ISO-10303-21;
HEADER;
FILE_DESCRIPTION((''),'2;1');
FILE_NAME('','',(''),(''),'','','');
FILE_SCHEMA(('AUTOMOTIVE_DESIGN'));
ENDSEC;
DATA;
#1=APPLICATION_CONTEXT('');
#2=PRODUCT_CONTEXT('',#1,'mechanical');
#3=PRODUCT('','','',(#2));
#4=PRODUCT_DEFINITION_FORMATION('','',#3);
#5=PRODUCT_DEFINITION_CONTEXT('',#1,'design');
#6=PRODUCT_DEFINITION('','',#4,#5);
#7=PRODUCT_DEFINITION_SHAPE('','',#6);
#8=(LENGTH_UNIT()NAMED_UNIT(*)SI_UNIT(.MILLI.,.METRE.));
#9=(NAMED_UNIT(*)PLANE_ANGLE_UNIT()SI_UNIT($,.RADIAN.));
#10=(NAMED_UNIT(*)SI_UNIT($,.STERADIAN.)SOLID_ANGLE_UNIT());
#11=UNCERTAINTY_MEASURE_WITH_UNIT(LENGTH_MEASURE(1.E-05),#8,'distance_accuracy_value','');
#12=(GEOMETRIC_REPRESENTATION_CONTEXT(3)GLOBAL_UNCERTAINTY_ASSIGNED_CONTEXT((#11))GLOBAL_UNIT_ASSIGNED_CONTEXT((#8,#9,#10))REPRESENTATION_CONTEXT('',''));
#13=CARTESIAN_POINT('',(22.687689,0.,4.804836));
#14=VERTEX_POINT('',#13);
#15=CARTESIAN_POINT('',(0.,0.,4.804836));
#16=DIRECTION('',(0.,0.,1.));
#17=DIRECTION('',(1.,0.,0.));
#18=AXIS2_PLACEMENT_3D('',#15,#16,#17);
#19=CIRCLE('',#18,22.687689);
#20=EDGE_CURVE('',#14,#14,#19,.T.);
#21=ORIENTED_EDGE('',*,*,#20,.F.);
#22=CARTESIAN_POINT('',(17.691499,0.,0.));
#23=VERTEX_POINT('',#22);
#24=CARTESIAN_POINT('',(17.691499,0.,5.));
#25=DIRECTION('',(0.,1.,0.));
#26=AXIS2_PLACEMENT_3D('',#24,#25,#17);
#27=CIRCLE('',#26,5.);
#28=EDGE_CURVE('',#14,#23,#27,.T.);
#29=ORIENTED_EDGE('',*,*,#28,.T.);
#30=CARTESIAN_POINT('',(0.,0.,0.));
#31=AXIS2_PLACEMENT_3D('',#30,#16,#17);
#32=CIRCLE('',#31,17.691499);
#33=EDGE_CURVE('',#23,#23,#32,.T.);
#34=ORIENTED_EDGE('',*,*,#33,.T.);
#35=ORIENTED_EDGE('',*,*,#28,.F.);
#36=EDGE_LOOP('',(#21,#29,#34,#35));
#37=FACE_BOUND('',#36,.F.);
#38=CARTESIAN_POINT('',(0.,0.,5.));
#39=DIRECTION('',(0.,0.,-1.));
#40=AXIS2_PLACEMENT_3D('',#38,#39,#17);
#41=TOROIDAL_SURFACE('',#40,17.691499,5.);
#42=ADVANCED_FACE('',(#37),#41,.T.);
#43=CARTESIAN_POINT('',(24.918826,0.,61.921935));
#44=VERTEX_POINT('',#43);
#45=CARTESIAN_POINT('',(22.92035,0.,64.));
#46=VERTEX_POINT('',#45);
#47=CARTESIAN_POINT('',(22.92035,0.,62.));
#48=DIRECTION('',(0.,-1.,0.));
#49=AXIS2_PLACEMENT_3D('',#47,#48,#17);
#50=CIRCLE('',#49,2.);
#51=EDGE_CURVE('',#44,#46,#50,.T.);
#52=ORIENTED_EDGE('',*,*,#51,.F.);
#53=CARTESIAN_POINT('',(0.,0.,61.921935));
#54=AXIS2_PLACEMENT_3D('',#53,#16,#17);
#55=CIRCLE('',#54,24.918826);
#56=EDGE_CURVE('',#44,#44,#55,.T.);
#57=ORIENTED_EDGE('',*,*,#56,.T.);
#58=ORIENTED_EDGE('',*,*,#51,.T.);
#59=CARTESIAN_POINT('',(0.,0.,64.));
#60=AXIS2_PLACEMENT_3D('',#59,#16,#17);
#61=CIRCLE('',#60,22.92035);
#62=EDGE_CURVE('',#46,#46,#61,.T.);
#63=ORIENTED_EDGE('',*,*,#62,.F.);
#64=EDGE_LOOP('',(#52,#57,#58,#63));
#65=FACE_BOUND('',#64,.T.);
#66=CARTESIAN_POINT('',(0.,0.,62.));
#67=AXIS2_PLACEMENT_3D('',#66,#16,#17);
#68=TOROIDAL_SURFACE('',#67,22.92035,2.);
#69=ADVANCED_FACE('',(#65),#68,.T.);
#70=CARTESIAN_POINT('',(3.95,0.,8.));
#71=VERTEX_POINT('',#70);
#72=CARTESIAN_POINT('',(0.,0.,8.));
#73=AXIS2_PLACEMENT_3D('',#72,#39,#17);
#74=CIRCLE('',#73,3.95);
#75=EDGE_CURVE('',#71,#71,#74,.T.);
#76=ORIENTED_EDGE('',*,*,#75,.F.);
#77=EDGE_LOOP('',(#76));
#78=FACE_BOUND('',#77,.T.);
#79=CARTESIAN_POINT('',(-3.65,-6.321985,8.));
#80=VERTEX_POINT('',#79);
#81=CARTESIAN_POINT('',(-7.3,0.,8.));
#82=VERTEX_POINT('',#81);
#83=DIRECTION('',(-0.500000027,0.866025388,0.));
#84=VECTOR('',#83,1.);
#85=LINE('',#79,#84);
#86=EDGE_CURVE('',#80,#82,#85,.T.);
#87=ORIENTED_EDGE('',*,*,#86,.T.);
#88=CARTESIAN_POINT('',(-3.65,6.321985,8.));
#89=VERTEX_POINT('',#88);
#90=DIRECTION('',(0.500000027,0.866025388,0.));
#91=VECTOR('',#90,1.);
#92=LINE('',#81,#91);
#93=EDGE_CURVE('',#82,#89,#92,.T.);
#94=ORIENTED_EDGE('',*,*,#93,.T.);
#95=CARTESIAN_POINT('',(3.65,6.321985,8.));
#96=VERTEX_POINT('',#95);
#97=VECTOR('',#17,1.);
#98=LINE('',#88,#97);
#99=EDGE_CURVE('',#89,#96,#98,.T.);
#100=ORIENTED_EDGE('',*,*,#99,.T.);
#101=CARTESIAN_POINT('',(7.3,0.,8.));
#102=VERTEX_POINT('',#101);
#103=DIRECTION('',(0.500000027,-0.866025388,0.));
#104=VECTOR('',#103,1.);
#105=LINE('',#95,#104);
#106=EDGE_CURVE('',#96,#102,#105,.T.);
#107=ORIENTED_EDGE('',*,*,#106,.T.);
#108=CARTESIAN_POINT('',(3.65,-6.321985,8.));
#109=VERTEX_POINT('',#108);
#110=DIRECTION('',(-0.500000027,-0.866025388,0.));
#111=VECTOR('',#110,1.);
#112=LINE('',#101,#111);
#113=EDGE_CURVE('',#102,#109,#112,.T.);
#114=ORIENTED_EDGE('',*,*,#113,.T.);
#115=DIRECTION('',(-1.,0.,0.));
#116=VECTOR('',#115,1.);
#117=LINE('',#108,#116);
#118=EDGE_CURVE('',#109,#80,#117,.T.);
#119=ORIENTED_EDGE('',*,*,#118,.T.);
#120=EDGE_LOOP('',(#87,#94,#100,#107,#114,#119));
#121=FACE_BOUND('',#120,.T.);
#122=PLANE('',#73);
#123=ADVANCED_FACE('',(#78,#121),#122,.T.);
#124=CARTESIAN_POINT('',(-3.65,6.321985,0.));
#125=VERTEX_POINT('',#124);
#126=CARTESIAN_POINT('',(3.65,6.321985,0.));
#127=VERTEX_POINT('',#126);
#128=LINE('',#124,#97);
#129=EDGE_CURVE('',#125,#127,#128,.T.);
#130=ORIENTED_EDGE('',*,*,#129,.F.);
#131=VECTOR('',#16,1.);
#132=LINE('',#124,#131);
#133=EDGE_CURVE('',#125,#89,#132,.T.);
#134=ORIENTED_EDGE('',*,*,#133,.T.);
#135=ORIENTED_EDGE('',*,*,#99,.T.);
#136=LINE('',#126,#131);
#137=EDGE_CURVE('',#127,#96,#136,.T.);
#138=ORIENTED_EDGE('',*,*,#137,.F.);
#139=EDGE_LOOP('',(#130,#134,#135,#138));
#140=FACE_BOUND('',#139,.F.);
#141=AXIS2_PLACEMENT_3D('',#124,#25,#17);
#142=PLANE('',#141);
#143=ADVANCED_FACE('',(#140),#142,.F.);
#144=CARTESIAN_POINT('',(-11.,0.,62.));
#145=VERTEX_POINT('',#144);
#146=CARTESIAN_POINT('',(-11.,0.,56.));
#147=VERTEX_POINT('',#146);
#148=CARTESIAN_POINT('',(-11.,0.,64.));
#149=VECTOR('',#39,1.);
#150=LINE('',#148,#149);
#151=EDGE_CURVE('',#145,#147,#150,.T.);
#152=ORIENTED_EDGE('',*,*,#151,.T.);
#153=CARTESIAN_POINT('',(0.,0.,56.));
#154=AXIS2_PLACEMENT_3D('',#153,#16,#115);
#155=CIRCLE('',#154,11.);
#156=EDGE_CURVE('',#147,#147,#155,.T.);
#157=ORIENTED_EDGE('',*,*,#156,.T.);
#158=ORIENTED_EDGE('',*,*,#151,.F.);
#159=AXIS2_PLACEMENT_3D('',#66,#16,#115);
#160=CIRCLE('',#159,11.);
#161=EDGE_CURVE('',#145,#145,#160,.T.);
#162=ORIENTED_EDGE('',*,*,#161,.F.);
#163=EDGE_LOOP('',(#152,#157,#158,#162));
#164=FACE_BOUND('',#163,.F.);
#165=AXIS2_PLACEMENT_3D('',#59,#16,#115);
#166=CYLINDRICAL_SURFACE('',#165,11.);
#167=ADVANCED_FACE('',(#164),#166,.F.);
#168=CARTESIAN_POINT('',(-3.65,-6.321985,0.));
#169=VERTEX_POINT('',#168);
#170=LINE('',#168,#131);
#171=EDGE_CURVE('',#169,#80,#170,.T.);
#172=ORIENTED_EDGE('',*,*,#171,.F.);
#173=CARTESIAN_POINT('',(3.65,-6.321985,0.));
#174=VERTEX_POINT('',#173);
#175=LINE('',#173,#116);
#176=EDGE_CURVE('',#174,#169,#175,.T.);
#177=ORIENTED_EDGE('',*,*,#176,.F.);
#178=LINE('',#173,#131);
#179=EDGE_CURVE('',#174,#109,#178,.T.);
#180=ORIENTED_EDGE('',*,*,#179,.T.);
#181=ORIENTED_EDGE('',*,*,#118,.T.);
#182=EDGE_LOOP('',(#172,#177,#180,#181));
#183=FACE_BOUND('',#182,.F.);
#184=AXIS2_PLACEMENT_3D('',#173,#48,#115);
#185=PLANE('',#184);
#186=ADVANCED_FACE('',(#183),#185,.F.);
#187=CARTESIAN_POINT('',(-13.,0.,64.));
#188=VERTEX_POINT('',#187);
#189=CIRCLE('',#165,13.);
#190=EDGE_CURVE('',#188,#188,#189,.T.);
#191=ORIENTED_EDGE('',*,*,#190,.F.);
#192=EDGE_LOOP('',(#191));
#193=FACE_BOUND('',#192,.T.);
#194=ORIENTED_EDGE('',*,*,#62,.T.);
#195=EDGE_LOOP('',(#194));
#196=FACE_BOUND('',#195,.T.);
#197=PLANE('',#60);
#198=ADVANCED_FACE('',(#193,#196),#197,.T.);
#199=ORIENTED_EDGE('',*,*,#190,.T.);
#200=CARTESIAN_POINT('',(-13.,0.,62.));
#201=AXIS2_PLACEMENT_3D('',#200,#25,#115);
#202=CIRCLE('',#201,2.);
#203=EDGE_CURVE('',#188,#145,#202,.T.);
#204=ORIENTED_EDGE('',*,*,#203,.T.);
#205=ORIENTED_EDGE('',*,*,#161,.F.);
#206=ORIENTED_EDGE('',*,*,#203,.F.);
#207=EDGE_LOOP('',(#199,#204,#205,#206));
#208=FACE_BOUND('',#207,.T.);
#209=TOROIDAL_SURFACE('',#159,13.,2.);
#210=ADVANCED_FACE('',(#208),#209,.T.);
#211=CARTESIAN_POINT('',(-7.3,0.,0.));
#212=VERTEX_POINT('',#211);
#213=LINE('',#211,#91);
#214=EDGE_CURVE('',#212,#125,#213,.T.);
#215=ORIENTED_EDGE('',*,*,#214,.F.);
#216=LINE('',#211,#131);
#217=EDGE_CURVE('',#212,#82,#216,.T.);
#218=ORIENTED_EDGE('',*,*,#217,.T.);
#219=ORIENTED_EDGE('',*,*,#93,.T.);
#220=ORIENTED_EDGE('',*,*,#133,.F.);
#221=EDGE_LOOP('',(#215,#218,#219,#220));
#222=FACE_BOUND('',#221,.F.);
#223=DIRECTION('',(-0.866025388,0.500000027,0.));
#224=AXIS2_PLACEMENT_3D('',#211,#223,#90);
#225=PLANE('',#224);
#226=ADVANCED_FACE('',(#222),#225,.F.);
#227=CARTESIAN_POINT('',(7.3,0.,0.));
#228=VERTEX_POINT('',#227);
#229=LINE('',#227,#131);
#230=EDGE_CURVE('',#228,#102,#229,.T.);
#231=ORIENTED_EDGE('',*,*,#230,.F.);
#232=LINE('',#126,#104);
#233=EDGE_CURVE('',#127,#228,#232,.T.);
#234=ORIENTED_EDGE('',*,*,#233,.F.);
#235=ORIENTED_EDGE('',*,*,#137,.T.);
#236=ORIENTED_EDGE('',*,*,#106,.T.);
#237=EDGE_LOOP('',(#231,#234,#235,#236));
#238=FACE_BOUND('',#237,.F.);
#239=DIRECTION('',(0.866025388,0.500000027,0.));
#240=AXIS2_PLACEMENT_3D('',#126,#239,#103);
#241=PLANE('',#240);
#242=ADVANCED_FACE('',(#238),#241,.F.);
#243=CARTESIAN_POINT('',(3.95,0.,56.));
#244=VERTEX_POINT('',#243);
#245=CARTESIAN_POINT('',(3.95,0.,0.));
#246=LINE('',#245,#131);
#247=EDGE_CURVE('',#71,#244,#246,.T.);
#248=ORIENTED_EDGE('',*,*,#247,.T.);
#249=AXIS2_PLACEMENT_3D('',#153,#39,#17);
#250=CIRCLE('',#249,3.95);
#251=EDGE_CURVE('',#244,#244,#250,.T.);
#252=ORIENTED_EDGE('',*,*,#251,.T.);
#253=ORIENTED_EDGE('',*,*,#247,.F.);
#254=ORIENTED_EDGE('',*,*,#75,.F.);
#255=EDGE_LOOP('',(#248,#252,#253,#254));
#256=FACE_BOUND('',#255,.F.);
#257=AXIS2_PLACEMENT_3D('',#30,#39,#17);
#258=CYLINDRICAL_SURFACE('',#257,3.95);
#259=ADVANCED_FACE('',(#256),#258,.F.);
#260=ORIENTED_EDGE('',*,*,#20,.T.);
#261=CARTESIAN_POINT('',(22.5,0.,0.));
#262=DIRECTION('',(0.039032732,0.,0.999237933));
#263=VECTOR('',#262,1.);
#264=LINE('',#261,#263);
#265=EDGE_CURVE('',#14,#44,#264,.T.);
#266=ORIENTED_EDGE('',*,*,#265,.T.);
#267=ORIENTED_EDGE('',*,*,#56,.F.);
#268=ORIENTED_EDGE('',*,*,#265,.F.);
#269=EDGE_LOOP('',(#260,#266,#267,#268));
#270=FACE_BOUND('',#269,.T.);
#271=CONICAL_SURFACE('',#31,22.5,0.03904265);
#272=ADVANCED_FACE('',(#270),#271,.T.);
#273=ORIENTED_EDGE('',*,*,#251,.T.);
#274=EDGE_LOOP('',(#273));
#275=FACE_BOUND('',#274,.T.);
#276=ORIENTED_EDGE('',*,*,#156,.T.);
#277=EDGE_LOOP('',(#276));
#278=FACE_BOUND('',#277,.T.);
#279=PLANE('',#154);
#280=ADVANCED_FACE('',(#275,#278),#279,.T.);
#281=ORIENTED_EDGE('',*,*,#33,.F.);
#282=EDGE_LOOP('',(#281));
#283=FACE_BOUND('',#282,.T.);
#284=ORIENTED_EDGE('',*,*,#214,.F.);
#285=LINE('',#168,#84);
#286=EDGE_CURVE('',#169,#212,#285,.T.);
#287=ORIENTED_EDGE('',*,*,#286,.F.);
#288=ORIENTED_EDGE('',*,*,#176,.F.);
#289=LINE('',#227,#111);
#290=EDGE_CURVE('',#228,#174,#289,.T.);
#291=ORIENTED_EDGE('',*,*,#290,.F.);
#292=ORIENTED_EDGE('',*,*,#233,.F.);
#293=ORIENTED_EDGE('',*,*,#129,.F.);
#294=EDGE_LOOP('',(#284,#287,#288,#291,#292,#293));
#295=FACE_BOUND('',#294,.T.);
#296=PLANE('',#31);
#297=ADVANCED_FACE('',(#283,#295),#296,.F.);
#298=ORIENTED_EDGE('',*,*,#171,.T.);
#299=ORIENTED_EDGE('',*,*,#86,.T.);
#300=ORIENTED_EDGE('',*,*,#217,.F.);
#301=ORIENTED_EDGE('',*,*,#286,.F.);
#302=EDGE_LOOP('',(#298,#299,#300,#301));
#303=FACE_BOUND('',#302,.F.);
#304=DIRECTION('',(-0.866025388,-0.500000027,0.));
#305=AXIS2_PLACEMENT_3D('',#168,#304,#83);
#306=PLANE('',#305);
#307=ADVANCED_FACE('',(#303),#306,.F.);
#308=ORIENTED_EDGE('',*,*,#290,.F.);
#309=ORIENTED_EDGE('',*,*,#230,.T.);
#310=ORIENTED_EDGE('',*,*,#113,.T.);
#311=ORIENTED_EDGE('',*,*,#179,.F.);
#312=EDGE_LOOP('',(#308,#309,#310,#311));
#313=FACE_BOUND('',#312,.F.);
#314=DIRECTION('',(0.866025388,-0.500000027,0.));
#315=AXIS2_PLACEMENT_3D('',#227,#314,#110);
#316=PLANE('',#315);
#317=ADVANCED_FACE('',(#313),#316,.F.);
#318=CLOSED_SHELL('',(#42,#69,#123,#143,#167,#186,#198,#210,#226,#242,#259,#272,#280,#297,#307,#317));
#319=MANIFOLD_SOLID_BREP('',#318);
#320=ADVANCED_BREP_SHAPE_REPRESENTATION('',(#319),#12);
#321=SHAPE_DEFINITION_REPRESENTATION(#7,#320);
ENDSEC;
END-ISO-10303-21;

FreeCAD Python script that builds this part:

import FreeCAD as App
import Part
import Sketcher

V = App.Vector
Q = App.Units.Quantity


def edges_at(feature, points):
    """Names of the edges that pass closest to the given points."""
    edges = feature.Shape.Edges
    near = lambda p: min(range(len(edges)), key=lambda i: edges[i].distToShape(Part.Vertex(*p))[0])
    return sorted({f"Edge{near(p) + 1}" for p in points})

doc = App.newDocument("Part")
body = doc.addObject("PartDesign::Body", "Body")

# Sketch on XZ plane
sketch1 = doc.addObject("Sketcher::SketchObject", "Sketch")
body.addObject(sketch1)
sketch1.AttachmentSupport = (doc.XZ_Plane, [""])
sketch1.MapMode = "FlatFace"
sketch1.addGeometry(Part.LineSegment(V(0, 0, 0), V(22.5, 0, 0)), False)
sketch1.addGeometry(Part.LineSegment(V(22.5, 0, 0), V(25, 64, 0)), False)
sketch1.addGeometry(Part.LineSegment(V(25, 64, 0), V(0, 64, 0)), False)
sketch1.addGeometry(Part.LineSegment(V(0, 64, 0), V(0, 0, 0)), False)
sketch1.addConstraint(Sketcher.Constraint("Coincident", 0, 2, 1, 1))
sketch1.addConstraint(Sketcher.Constraint("Coincident", 1, 2, 2, 1))
sketch1.addConstraint(Sketcher.Constraint("Coincident", 2, 2, 3, 1))
sketch1.addConstraint(Sketcher.Constraint("Coincident", 3, 2, 0, 1))
sketch1.addConstraint(Sketcher.Constraint("Horizontal", 0))
sketch1.addConstraint(Sketcher.Constraint("Horizontal", 2))
sketch1.addConstraint(Sketcher.Constraint("Vertical", 3))
sketch1.addConstraint(Sketcher.Constraint("Coincident", 3, 2, -1, 1))
sketch1.addConstraint(Sketcher.Constraint("DistanceX", 2, 2, 2, 1, 25.0))
sketch1.addConstraint(Sketcher.Constraint("DistanceY", 3, 2, 3, 1, 64.0))
sketch1.addConstraint(Sketcher.Constraint("DistanceX", 0, 1, 0, 2, 22.5))
revolution = doc.addObject("PartDesign::Revolution", "Revolution")
body.addObject(revolution)
revolution.Profile = sketch1
revolution.ReferenceAxis = (sketch1, ["V_Axis"])
revolution.Angle = 360

# Sketch on XY plane
sketch2 = doc.addObject("Sketcher::SketchObject", "Sketch001")
body.addObject(sketch2)
sketch2.AttachmentSupport = (doc.XY_Plane, [""])
sketch2.MapMode = "FlatFace"
sketch2.addGeometry(Part.LineSegment(V(7.3, 0, 0), V(3.65, -6.321985, 0)), False)
sketch2.addGeometry(Part.LineSegment(V(3.65, -6.321985, 0), V(-3.65, -6.321985, 0)), False)
sketch2.addGeometry(Part.LineSegment(V(-3.65, -6.321985, 0), V(-7.3, 0, 0)), False)
sketch2.addGeometry(Part.LineSegment(V(-7.3, 0, 0), V(-3.65, 6.321985, 0)), False)
sketch2.addGeometry(Part.LineSegment(V(-3.65, 6.321985, 0), V(3.65, 6.321985, 0)), False)
sketch2.addGeometry(Part.LineSegment(V(3.65, 6.321985, 0), V(7.3, 0, 0)), False)
sketch2.addConstraint(Sketcher.Constraint("Coincident", 0, 2, 1, 1))
sketch2.addConstraint(Sketcher.Constraint("Coincident", 1, 2, 2, 1))
sketch2.addConstraint(Sketcher.Constraint("Coincident", 2, 2, 3, 1))
sketch2.addConstraint(Sketcher.Constraint("Coincident", 3, 2, 4, 1))
sketch2.addConstraint(Sketcher.Constraint("Coincident", 4, 2, 5, 1))
sketch2.addConstraint(Sketcher.Constraint("Coincident", 5, 2, 0, 1))
sketch2.addConstraint(Sketcher.Constraint("Horizontal", 1))
sketch2.addConstraint(Sketcher.Constraint("Horizontal", 4))
sketch2.addConstraint(Sketcher.Constraint("Symmetric", 0, 2, 3, 2, -1, 1))
sketch2.addConstraint(Sketcher.Constraint("Symmetric", 2, 2, 5, 2, -1, 1))
sketch2.addConstraint(Sketcher.Constraint("PointOnObject", 2, 2, -1))
sketch2.addConstraint(Sketcher.Constraint("Parallel", 2, 5))
sketch2.addConstraint(Sketcher.Constraint("Vertical", 1, 2, 3, 2))
sketch2.addConstraint(Sketcher.Constraint("Angle", 0, Q("-120.000002 deg")))
sketch2.addConstraint(Sketcher.Constraint("DistanceX", 1, 2, 1, 1, 7.3))
sketch2.addConstraint(Sketcher.Constraint("Distance", 0, 7.3))
pocket1 = doc.addObject("PartDesign::Pocket", "Pocket")
body.addObject(pocket1)
pocket1.Profile = sketch2
pocket1.Length = 8
pocket1.Reversed = True

# Sketch on XY plane
sketch3 = doc.addObject("Sketcher::SketchObject", "Sketch002")
body.addObject(sketch3)
sketch3.AttachmentSupport = (doc.XY_Plane, [""])
sketch3.MapMode = "FlatFace"
sketch3.addGeometry(Part.Circle(V(0, 0, 0), V(0, 0, 1), 3.95), False)
sketch3.addConstraint(Sketcher.Constraint("Coincident", 0, 3, -1, 1))
sketch3.addConstraint(Sketcher.Constraint("Diameter", 0, 7.9))
pocket2 = doc.addObject("PartDesign::Pocket", "Pocket001")
body.addObject(pocket2)
pocket2.Profile = sketch3
pocket2.Type = "ThroughAll"
pocket2.Reversed = True

# Sketch on XY plane
sketch4 = doc.addObject("Sketcher::SketchObject", "Sketch003")
body.addObject(sketch4)
sketch4.AttachmentSupport = (doc.XY_Plane, [""])
sketch4.MapMode = "FlatFace"
sketch4.AttachmentOffset = App.Placement(V(0, 0, 64), App.Rotation())
sketch4.addGeometry(Part.Circle(V(0, 0, 0), V(0, 0, 1), 11), False)
sketch4.addConstraint(Sketcher.Constraint("Coincident", 0, 3, -1, 1))
sketch4.addConstraint(Sketcher.Constraint("Diameter", 0, 22.0))
pocket3 = doc.addObject("PartDesign::Pocket", "Pocket002")
body.addObject(pocket3)
pocket3.Profile = sketch4
pocket3.Length = 8
doc.recompute()

fillet = doc.addObject("PartDesign::Fillet", "Fillet")
body.addObject(fillet)
fillet.Base = (pocket3, edges_at(pocket3, [(-25, 0, 64), (11, 0, 64)]))
fillet.Radius = 2
doc.recompute()

fillet2 = doc.addObject("PartDesign::Fillet", "Fillet001")
body.addObject(fillet2)
fillet2.Base = (fillet, edges_at(fillet, [(-22.5, 0, 0)]))
fillet2.Radius = 5

doc.recompute()
